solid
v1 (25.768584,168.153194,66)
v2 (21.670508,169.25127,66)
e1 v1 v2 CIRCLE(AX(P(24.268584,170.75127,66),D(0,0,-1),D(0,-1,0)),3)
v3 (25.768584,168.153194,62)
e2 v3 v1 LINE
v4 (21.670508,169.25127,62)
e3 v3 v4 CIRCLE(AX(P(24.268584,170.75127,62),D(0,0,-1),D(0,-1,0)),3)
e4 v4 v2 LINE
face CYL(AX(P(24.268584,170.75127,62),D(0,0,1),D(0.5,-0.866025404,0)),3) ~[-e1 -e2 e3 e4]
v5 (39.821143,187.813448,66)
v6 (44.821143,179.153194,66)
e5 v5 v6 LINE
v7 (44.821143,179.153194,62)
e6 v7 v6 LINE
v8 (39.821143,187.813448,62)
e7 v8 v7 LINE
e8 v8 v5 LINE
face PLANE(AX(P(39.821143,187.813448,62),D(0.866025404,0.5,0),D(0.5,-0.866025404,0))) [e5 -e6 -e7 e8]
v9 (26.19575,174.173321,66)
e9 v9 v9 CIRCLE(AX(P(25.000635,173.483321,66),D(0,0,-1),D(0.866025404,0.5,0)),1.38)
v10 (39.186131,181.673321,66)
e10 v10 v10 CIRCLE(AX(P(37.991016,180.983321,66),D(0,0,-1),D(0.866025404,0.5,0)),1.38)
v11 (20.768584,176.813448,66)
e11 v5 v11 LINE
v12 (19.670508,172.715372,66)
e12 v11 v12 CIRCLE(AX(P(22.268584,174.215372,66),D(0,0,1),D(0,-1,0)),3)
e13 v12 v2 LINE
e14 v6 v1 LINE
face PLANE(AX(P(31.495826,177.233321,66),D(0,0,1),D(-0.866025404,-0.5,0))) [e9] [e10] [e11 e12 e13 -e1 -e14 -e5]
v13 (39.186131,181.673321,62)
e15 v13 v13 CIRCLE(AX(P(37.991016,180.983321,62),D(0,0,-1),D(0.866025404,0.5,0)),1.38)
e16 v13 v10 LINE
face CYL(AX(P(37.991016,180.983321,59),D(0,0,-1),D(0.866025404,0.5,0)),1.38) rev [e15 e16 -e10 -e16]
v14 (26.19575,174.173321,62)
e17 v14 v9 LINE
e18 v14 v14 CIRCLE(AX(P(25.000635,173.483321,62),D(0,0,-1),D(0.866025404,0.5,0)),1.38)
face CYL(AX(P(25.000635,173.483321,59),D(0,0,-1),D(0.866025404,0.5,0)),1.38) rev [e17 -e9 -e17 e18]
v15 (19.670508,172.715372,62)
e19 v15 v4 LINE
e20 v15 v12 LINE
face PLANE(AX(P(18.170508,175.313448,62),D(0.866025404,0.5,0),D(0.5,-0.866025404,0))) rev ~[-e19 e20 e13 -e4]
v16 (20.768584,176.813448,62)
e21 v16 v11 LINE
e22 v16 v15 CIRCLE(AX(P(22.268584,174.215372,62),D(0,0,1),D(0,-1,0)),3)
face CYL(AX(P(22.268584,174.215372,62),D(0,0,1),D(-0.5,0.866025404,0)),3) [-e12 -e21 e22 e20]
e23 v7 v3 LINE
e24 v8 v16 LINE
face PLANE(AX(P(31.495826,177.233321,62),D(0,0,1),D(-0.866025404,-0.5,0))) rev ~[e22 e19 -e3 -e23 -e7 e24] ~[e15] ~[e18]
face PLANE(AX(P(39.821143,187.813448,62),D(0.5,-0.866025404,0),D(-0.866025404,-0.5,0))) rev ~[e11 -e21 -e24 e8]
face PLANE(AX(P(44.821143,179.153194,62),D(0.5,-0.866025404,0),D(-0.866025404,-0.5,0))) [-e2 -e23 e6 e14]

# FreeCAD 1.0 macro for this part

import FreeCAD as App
import Part
import Sketcher

V = App.Vector


def edges_at(feature, points):
    """Names of the edges that pass closest to the given points."""
    edges = feature.Shape.Edges
    near = lambda p: min(range(len(edges)), key=lambda i: edges[i].distToShape(Part.Vertex(*p))[0])
    return sorted({f"Edge{near(p) + 1}" for p in points})

doc = App.newDocument("Part")
body = doc.addObject("PartDesign::Body", "Body")

# Sketch on XY plane
sketch1 = doc.addObject("Sketcher::SketchObject", "Sketch")
body.addObject(sketch1)
sketch1.AttachmentSupport = (doc.XY_Plane, [""])
sketch1.MapMode = "FlatFace"
sketch1.AttachmentOffset = App.Placement(V(0, 0, 59), App.Rotation())
sketch1.addGeometry(Part.Circle(V(25, 52, 0), V(0, 0, 1), 1.4), False)
sketch1.addConstraint(Sketcher.Constraint("Diameter", 0, 2.76))
sketch1.addConstraint(Sketcher.Constraint("DistanceX", -1, 1, 0, 3, 25.0))
sketch1.addConstraint(Sketcher.Constraint("DistanceY", -1, 1, 0, 3, 52.0))
pad1 = doc.addObject("PartDesign::Pad", "Pad")
body.addObject(pad1)
pad1.Profile = sketch1
pad1.Length = 10
body2 = doc.addObject("PartDesign::Body", "Body001")

# Sketch on XY plane
sketch2 = doc.addObject("Sketcher::SketchObject", "Sketch001")
body2.addObject(sketch2)
sketch2.AttachmentSupport = (doc.getObject("XY_Plane001"), [""])
sketch2.MapMode = "FlatFace"
sketch2.AttachmentOffset = App.Placement(V(0, 0, 59), App.Rotation())
sketch2.addGeometry(Part.Circle(V(40, 52, 0), V(0, 0, 1), 1.4), False)
sketch2.addConstraint(Sketcher.Constraint("Diameter", 0, 2.76))
sketch2.addConstraint(Sketcher.Constraint("DistanceX", -1, 1, 0, 3, 40.0))
sketch2.addConstraint(Sketcher.Constraint("DistanceY", -1, 1, 0, 3, 52.0))
pad2 = doc.addObject("PartDesign::Pad", "Pad001")
body2.addObject(pad2)
pad2.Profile = sketch2
pad2.Length = 10
body3 = doc.addObject("PartDesign::Body", "Body002")

# Sketch on XY plane
sketch3 = doc.addObject("Sketcher::SketchObject", "Sketch002")
body3.addObject(sketch3)
sketch3.AttachmentSupport = (doc.getObject("XY_Plane002"), [""])
sketch3.MapMode = "FlatFace"
sketch3.AttachmentOffset = App.Placement(V(0, 0, 62), App.Rotation())
sketch3.addGeometry(Part.LineSegment(V(45, 47, 0), V(45, 57, 0)), False)
sketch3.addGeometry(Part.LineSegment(V(45, 57, 0), V(20, 57, 0)), False)
sketch3.addGeometry(Part.LineSegment(V(20, 57, 0), V(20, 47, 0)), False)
sketch3.addGeometry(Part.LineSegment(V(20, 47, 0), V(45, 47, 0)), False)
sketch3.addConstraint(Sketcher.Constraint("Coincident", 0, 2, 1, 1))
sketch3.addConstraint(Sketcher.Constraint("Coincident", 1, 2, 2, 1))
sketch3.addConstraint(Sketcher.Constraint("Coincident", 2, 2, 3, 1))
sketch3.addConstraint(Sketcher.Constraint("Coincident", 3, 2, 0, 1))
sketch3.addConstraint(Sketcher.Constraint("Vertical", 0))
sketch3.addConstraint(Sketcher.Constraint("Horizontal", 1))
sketch3.addConstraint(Sketcher.Constraint("Vertical", 2))
sketch3.addConstraint(Sketcher.Constraint("Horizontal", 3))
sketch3.addConstraint(Sketcher.Constraint("DistanceX", 1, 2, 1, 1, 25.0))
sketch3.addConstraint(Sketcher.Constraint("DistanceY", 0, 1, 0, 2, 10.0))
sketch3.addConstraint(Sketcher.Constraint("DistanceX", -1, 1, 0, 2, 45.0))
sketch3.addConstraint(Sketcher.Constraint("DistanceY", -1, 1, 0, 2, 57.0))
pad3 = doc.addObject("PartDesign::Pad", "Pad002")
body3.addObject(pad3)
pad3.Profile = sketch3
pad3.Length = 4
doc.recompute()

boolean = doc.addObject("PartDesign::Boolean", "Boolean")
body3.addObject(boolean)
boolean.Type = "Cut"
boolean.addObjects([body2])
doc.recompute()

boolean2 = doc.addObject("PartDesign::Boolean", "Boolean001")
body3.addObject(boolean2)
boolean2.Type = "Cut"
boolean2.addObjects([body])
body4 = doc.addObject("PartDesign::Body", "Body003")
doc.recompute()

body3.Placement = App.Placement(V(31.35, -13.05, 0), App.Rotation(V(0, 0, 1), 30))
boolean3 = doc.addObject("PartDesign::Boolean", "Boolean002")
body4.addObject(boolean3)
boolean3.Type = "Fuse"
boolean3.addObjects([body3])
doc.recompute()

fillet = doc.addObject("PartDesign::Fillet", "Fillet")
body4.addObject(fillet)
fillet.Base = (boolean3, edges_at(boolean3, [(20.171, 46.313, 64), (25.171, 37.653, 64)]))
fillet.Radius = 3
body5 = doc.addObject("PartDesign::Body", "Body004")
doc.recompute()

body4.Placement = App.Placement(V(-2, 129, 0), App.Rotation(V(0, 0, 1), 0))
boolean4 = doc.addObject("PartDesign::Boolean", "Boolean003")
body5.addObject(boolean4)
boolean4.Type = "Fuse"
boolean4.addObjects([body4])

doc.recompute()
